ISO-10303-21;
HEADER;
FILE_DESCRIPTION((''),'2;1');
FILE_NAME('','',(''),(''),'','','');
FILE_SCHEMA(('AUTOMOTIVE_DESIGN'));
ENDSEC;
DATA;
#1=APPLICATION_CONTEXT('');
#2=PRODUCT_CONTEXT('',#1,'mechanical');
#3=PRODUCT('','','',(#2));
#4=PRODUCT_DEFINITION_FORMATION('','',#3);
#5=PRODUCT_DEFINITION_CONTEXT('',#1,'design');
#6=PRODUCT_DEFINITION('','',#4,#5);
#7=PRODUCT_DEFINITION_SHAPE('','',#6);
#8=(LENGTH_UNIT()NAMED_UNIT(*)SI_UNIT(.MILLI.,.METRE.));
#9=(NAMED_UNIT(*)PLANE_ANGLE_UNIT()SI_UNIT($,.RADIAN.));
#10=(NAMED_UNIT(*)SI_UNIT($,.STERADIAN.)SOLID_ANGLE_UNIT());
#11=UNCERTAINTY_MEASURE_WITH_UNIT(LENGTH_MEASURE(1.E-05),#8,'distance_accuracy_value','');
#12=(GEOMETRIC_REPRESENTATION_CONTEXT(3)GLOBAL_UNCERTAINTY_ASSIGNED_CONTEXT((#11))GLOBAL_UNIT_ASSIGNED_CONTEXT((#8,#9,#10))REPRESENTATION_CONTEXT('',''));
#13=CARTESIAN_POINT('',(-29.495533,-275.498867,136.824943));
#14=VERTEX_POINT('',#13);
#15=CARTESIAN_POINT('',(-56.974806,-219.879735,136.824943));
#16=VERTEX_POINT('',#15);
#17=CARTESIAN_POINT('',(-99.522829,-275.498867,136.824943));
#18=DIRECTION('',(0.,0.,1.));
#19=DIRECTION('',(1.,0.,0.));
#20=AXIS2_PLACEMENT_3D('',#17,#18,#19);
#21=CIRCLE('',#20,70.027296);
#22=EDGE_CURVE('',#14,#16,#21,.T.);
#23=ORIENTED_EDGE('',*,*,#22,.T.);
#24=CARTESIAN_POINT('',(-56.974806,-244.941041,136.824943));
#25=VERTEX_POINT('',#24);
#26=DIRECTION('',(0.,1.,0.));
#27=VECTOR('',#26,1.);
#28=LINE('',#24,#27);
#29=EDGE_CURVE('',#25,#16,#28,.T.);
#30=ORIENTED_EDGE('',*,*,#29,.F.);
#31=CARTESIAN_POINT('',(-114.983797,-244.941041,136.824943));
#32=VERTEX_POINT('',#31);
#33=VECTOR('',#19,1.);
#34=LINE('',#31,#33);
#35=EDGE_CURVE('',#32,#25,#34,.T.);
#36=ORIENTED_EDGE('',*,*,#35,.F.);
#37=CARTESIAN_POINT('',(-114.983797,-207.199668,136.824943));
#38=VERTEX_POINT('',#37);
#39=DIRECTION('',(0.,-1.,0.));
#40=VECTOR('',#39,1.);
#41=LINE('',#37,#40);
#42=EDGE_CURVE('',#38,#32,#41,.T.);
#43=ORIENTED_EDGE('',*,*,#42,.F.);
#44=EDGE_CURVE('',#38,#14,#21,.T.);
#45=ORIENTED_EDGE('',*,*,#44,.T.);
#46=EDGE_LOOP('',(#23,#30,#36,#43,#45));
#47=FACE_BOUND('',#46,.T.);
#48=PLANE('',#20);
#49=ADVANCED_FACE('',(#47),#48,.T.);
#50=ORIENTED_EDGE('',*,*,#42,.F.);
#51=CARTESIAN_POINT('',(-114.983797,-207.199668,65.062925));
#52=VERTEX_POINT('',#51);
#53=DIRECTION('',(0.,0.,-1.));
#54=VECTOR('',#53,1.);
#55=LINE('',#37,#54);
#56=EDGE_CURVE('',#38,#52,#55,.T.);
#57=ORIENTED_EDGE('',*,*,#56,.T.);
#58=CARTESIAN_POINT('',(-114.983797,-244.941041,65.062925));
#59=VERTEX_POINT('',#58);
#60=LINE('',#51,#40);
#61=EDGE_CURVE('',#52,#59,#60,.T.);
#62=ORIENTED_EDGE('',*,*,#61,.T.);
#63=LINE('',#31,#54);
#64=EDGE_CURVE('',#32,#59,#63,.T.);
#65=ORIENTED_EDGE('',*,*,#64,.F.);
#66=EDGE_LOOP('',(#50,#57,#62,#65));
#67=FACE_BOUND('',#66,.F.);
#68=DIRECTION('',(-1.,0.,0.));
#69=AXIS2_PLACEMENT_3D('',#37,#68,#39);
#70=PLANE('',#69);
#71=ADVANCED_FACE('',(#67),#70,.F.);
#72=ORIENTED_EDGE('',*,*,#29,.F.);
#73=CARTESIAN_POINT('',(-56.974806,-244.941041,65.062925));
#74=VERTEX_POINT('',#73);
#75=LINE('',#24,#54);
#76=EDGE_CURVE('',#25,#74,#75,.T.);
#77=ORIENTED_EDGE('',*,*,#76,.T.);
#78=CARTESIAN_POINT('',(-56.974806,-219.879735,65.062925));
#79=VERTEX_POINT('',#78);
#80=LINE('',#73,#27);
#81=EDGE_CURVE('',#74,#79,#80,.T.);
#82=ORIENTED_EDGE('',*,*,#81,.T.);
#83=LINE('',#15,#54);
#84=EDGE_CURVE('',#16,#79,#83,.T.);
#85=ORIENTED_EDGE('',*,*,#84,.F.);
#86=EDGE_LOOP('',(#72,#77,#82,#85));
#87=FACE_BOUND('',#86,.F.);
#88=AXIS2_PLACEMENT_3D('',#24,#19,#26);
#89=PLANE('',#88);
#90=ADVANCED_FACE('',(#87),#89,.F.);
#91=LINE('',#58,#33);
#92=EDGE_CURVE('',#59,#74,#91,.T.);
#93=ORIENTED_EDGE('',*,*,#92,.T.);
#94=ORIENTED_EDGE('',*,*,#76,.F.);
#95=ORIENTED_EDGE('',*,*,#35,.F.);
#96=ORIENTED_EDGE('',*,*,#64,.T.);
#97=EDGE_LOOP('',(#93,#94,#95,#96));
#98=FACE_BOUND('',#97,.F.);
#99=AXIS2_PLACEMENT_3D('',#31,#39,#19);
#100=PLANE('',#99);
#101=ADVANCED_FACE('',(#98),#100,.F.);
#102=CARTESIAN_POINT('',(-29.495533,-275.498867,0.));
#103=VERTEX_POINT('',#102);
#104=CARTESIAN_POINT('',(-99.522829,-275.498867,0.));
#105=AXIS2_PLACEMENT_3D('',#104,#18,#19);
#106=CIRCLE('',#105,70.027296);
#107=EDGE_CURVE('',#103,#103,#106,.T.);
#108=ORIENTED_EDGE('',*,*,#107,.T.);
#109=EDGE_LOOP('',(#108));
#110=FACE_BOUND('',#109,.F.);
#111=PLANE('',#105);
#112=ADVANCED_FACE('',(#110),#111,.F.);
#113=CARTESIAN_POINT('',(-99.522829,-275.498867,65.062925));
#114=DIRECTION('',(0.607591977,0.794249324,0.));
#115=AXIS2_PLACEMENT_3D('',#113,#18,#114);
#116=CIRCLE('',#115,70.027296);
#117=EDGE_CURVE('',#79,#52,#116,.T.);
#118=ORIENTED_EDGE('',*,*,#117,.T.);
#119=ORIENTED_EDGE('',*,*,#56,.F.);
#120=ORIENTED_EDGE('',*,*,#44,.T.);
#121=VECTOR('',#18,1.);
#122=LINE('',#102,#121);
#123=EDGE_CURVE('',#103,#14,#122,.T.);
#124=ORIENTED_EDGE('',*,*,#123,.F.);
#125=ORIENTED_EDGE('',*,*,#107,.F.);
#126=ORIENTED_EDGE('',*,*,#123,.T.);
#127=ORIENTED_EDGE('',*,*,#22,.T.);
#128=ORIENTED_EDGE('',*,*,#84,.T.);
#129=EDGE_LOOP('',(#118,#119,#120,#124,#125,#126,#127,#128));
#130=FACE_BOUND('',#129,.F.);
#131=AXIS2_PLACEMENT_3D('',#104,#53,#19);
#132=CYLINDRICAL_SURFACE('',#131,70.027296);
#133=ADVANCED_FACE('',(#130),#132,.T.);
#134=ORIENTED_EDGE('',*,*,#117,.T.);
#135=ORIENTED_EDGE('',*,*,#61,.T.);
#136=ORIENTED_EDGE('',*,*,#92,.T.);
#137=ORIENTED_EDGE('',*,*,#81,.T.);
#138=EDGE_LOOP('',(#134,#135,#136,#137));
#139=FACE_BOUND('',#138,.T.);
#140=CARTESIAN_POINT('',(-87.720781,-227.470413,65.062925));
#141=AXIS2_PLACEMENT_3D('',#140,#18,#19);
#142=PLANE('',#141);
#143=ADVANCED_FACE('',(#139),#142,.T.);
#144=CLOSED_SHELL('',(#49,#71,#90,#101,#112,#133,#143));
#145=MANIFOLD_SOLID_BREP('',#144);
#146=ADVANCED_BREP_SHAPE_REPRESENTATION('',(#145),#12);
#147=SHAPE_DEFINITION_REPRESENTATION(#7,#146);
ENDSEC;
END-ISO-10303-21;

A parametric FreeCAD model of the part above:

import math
import FreeCAD as App
import Part
import Sketcher

V = App.Vector
Q = App.Units.Quantity

doc = App.newDocument("Part")
body = doc.addObject("PartDesign::Body", "Body")

sketch1 = body.newObject("Sketcher::SketchObject", "Sketch")
sketch1.AttachmentSupport = (doc.getObject("XY_Plane"), [""])
sketch1.MapMode = "FlatFace"
sketch1.addGeometry(Part.Circle(V(-100, -275, 0), V(0, 0, 1), 70), False)
sketch1.addConstraint([
    Sketcher.Constraint("Diameter", 0, Q("140.054592 mm")),
    Sketcher.Constraint("DistanceX", 0, 3, -1, 1, Q("99.522829 mm")),
    Sketcher.Constraint("DistanceY", 0, 3, -1, 1, Q("275.498867 mm")),
])
pad1 = body.newObject("PartDesign::Pad", "Pad")
pad1.Profile = sketch1
pad1.Length = 136.824943

sketch2 = body.newObject("Sketcher::SketchObject", "Sketch001")
sketch2.AttachmentSupport = (doc.getObject("XY_Plane"), [""])
sketch2.MapMode = "FlatFace"
sketch2.AttachmentOffset = App.Placement(V(0, 0, 136.824943), App.Rotation())
sketch2.addGeometry([
    Part.ArcOfCircle(Part.Circle(V(-100, -275, 0), V(0, 0, 1), 70), math.radians(53), math.radians(103)),
    Part.LineSegment(V(-115, -207, 0), V(-115, -245, 0)),
    Part.LineSegment(V(-115, -245, 0), V(-57, -245, 0)),
    Part.LineSegment(V(-57, -245, 0), V(-57, -220, 0)),
], False)
sketch2.addConstraint([
    Sketcher.Constraint("Coincident", 0, 2, 1, 1),
    Sketcher.Constraint("Coincident", 1, 2, 2, 1),
    Sketcher.Constraint("Coincident", 2, 2, 3, 1),
    Sketcher.Constraint("Coincident", 3, 2, 0, 1),
    Sketcher.Constraint("Vertical", 1),
    Sketcher.Constraint("Horizontal", 2),
    Sketcher.Constraint("Vertical", 3),
    Sketcher.Constraint("Radius", 0, Q("70.027296 mm")),
    Sketcher.Constraint("DistanceX", 2, 1, 2, 2, Q("58.008991 mm")),
    Sketcher.Constraint("DistanceY", 0, 3, 0, 2, Q("68.299199 mm")),
    Sketcher.Constraint("DistanceY", 1, 2, 1, 1, Q("37.741373 mm")),
    Sketcher.Constraint("DistanceX", 0, 3, -1, 1, Q("99.522829 mm")),
    Sketcher.Constraint("DistanceY", 1, 2, -1, 1, Q("244.941041 mm")),
])
pocket1 = body.newObject("PartDesign::Pocket", "Pocket")
pocket1.Profile = sketch2
pocket1.Length = 71.762018

doc.recompute()
